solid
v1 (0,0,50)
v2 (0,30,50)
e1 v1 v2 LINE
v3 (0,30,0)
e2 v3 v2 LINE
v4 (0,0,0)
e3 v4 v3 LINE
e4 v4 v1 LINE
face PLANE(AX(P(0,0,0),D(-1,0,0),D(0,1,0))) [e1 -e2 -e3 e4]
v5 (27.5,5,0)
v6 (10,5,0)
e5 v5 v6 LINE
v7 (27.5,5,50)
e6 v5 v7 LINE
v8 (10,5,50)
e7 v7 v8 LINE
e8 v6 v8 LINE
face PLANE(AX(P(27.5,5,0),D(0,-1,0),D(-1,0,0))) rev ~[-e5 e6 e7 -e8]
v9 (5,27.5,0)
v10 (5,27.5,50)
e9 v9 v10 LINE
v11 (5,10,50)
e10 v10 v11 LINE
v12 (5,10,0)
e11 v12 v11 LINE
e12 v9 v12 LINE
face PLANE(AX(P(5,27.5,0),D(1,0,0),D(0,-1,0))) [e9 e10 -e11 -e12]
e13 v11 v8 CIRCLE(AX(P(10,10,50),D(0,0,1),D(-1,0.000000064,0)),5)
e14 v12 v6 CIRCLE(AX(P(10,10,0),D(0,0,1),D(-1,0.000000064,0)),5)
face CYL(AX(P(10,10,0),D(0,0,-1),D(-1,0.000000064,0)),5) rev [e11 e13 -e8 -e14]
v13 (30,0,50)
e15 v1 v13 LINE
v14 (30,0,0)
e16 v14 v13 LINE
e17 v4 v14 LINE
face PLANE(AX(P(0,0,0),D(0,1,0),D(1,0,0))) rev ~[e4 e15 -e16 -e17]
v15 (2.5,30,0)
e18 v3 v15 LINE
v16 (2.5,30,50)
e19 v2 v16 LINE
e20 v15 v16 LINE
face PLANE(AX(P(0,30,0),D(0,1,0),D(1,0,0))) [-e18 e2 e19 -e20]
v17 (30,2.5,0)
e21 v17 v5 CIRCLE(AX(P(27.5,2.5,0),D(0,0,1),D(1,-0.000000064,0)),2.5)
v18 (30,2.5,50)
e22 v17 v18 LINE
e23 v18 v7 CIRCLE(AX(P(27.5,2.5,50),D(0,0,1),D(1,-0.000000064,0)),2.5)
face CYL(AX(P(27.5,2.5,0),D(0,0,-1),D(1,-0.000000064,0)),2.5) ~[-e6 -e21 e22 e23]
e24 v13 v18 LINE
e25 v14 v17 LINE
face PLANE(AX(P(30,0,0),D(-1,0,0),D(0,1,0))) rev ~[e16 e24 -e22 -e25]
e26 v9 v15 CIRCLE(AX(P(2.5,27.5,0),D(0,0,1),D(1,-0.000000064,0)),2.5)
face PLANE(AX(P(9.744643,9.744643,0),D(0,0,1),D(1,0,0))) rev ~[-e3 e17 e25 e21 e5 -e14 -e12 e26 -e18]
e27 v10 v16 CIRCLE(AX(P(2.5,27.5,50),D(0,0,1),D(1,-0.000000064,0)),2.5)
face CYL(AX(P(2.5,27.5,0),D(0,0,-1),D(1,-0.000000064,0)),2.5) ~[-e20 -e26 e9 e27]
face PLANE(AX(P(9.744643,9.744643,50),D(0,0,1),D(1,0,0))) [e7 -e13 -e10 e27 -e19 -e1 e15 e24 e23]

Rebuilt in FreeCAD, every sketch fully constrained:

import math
import FreeCAD as App
import Part
import Sketcher

doc = App.newDocument("Part")
body = doc.addObject("PartDesign::Body", "Body")

sketch1 = doc.addObject("Sketcher::SketchObject", "Sketch")
body.addObject(sketch1)
sketch1.AttachmentSupport = (doc.XY_Plane, [""])
sketch1.MapMode = "FlatFace"
sketch1.addGeometry(Part.LineSegment(App.Vector(0, 0, 0), App.Vector(30, 0, 0)), False)
sketch1.addGeometry(Part.LineSegment(App.Vector(30, 0, 0), App.Vector(30, 2.5, 0)), False)
sketch1.addGeometry(Part.ArcOfCircle(Part.Circle(App.Vector(27.5, 2.5, 0), App.Vector(0, 0, 1), 2.5), math.radians(0), math.radians(90)), False)
sketch1.addGeometry(Part.LineSegment(App.Vector(27.5, 5, 0), App.Vector(10, 5, 0)), False)
sketch1.addGeometry(Part.ArcOfCircle(Part.Circle(App.Vector(10, 10, 0), App.Vector(0, 0, 1), 5), math.radians(180), math.radians(270)), False)
sketch1.addGeometry(Part.LineSegment(App.Vector(5, 10, 0), App.Vector(5, 27.5, 0)), False)
sketch1.addGeometry(Part.ArcOfCircle(Part.Circle(App.Vector(2.5, 27.5, 0), App.Vector(0, 0, 1), 2.5), math.radians(0), math.radians(90)), False)
sketch1.addGeometry(Part.LineSegment(App.Vector(2.5, 30, 0), App.Vector(0, 30, 0)), False)
sketch1.addGeometry(Part.LineSegment(App.Vector(0, 30, 0), App.Vector(0, 0, 0)), False)
sketch1.addConstraint(Sketcher.Constraint("Coincident", 0, 2, 1, 1))
sketch1.addConstraint(Sketcher.Constraint("Tangent", 1, 2, 2, 1))
sketch1.addConstraint(Sketcher.Constraint("Tangent", 2, 2, 3, 1))
sketch1.addConstraint(Sketcher.Constraint("Tangent", 3, 2, 4, 2))
sketch1.addConstraint(Sketcher.Constraint("Tangent", 4, 1, 5, 1))
sketch1.addConstraint(Sketcher.Constraint("Tangent", 5, 2, 6, 1))
sketch1.addConstraint(Sketcher.Constraint("Tangent", 6, 2, 7, 1))
sketch1.addConstraint(Sketcher.Constraint("Coincident", 7, 2, 8, 1))
sketch1.addConstraint(Sketcher.Constraint("Coincident", 8, 2, 0, 1))
sketch1.addConstraint(Sketcher.Constraint("Horizontal", 0))
sketch1.addConstraint(Sketcher.Constraint("Vertical", 1))
sketch1.addConstraint(Sketcher.Constraint("Horizontal", 3))
sketch1.addConstraint(Sketcher.Constraint("Vertical", 5))
sketch1.addConstraint(Sketcher.Constraint("Horizontal", 7))
sketch1.addConstraint(Sketcher.Constraint("Vertical", 8))
sketch1.addConstraint(Sketcher.Constraint("Coincident", 8, 2, -1, 1))
sketch1.addConstraint(Sketcher.Constraint("Equal", 2, 6))
sketch1.addConstraint(Sketcher.Constraint("Equal", 7, 1))
sketch1.addConstraint(Sketcher.Constraint("Equal", 3, 5))
sketch1.addConstraint(Sketcher.Constraint("Radius", 4, 5.0))
sketch1.addConstraint(Sketcher.Constraint("Radius", 2, 2.5))
sketch1.addConstraint(Sketcher.Constraint("DistanceX", 0, 1, 0, 2, 30.0))
sketch1.addConstraint(Sketcher.Constraint("DistanceX", 3, 2, 3, 1, 17.5))
pad1 = doc.addObject("PartDesign::Pad", "Pad")
body.addObject(pad1)
pad1.Profile = sketch1
pad1.Length = 50

doc.recompute()
